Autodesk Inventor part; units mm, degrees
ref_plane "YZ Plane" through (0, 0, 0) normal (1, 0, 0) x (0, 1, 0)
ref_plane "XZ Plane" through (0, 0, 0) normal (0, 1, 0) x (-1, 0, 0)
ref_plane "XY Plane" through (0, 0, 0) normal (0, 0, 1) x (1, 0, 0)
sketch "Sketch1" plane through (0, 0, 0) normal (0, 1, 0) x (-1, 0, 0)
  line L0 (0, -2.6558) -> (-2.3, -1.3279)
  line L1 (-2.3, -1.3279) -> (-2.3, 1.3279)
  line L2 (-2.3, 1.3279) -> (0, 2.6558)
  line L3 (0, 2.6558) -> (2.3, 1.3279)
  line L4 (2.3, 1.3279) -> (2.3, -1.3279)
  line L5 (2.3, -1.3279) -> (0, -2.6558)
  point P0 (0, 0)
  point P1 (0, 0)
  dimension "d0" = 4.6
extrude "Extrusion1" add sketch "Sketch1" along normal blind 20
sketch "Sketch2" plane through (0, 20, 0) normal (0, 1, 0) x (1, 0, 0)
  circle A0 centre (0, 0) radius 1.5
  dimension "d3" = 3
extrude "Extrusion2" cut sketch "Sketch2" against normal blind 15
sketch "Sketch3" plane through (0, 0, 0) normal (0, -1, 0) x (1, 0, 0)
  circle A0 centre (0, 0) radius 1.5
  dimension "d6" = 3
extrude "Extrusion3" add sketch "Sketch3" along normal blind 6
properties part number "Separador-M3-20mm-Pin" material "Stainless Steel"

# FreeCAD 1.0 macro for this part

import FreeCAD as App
import Part
import Sketcher
from FreeCAD import Vector
Q = App.Units.Quantity


def add_polygon(sketch, points):
    """Adds a closed chain of lines whose ends are joined by coincident constraints."""
    first, n = sketch.GeometryCount, len(points)
    for a, b in zip(points, points[1:] + points[:1]):
        sketch.addGeometry(Part.LineSegment(App.Vector(*a, 0), App.Vector(*b, 0)), False)
    for i in range(n):
        sketch.addConstraint(Sketcher.Constraint("Coincident", first + i, 2, first + (i + 1) % n, 1))

doc = App.newDocument("Part")
body = doc.addObject("PartDesign::Body", "Body")

# Sketch on XZ plane
sketch1 = doc.addObject("Sketcher::SketchObject", "Sketch")
body.addObject(sketch1)
sketch1.AttachmentSupport = (doc.XZ_Plane, [""])
sketch1.MapMode = "FlatFace"
add_polygon(sketch1, [(2.3, -1.3), (0, -2.7), (-2.3, -1.3), (-2.3, 1.3), (0, 2.7), (2.3, 1.3)])  # lines 0-5
sketch1.addConstraint(Sketcher.Constraint("Vertical", 2))
sketch1.addConstraint(Sketcher.Constraint("Vertical", 5))
sketch1.addConstraint(Sketcher.Constraint("Symmetric", 0, 2, 3, 2, -1, 1))
sketch1.addConstraint(Sketcher.Constraint("Symmetric", 1, 2, 4, 2, -1, 1))
sketch1.addConstraint(Sketcher.Constraint("PointOnObject", 0, 2, -2))
sketch1.addConstraint(Sketcher.Constraint("Parallel", 0, 3))
sketch1.addConstraint(Sketcher.Constraint("Horizontal", 2, 2, 4, 2))
sketch1.addConstraint(Sketcher.Constraint("DistanceX", 2, 2, 4, 2, 4.6))
sketch1.addConstraint(Sketcher.Constraint("Angle", 0, Q("-150 deg")))
sketch1.addConstraint(Sketcher.Constraint("DistanceY", 2, 1, 2, 2, 2.6558))
pad1 = doc.addObject("PartDesign::Pad", "Pad")
body.addObject(pad1)
pad1.Profile = sketch1
pad1.Length = 20
pad1.Reversed = True

# Sketch on XZ plane
sketch2 = doc.addObject("Sketcher::SketchObject", "Sketch001")
body.addObject(sketch2)
sketch2.AttachmentSupport = (doc.XZ_Plane, [""])
sketch2.MapMode = "FlatFace"
sketch2.AttachmentOffset = App.Placement(Vector(0, 0, -20), App.Rotation())
sketch2.addGeometry(Part.Circle(Vector(0, 0, 0), Vector(0, 0, 1), 1.5), False)
sketch2.addConstraint(Sketcher.Constraint("Coincident", 0, 3, -1, 1))
sketch2.addConstraint(Sketcher.Constraint("Diameter", 0, 3.0))
pocket1 = doc.addObject("PartDesign::Pocket", "Pocket")
body.addObject(pocket1)
pocket1.Profile = sketch2
pocket1.Length = 15
pocket1.Reversed = True

# Sketch on XZ plane
sketch3 = doc.addObject("Sketcher::SketchObject", "Sketch002")
body.addObject(sketch3)
sketch3.AttachmentSupport = (doc.XZ_Plane, [""])
sketch3.MapMode = "FlatFace"
sketch3.addGeometry(Part.Circle(Vector(0, 0, 0), Vector(0, 0, 1), 1.5), False)
sketch3.addConstraint(Sketcher.Constraint("Coincident", 0, 3, -1, 1))
sketch3.addConstraint(Sketcher.Constraint("Diameter", 0, 3.0))
pad2 = doc.addObject("PartDesign::Pad", "Pad001")
body.addObject(pad2)
pad2.Profile = sketch3
pad2.Length = 6

doc.recompute()
